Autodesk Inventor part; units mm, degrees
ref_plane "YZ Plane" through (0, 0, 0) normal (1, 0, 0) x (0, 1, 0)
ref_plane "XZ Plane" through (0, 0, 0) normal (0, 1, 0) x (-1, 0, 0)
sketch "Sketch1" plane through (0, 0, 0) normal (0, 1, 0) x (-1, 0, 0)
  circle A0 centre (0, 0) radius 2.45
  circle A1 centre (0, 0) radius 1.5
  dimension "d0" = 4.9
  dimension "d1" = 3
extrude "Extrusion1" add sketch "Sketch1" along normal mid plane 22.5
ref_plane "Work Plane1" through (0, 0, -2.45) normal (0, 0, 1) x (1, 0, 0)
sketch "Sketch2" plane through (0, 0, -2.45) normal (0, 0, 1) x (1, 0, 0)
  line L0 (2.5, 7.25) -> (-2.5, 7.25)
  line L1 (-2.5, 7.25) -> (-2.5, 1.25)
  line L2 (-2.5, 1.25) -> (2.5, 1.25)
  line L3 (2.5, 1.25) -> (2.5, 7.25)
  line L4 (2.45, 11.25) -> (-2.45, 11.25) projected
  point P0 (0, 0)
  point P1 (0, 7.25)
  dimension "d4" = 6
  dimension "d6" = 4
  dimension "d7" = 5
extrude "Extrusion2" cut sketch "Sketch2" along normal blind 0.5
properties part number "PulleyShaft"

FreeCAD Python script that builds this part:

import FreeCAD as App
import Part
import Sketcher
from FreeCAD import Vector


def add_polygon(sketch, points):
    """Adds a closed chain of lines whose ends are joined by coincident constraints."""
    first, n = sketch.GeometryCount, len(points)
    for a, b in zip(points, points[1:] + points[:1]):
        sketch.addGeometry(Part.LineSegment(App.Vector(*a, 0), App.Vector(*b, 0)), False)
    for i in range(n):
        sketch.addConstraint(Sketcher.Constraint("Coincident", first + i, 2, first + (i + 1) % n, 1))

doc = App.newDocument("Part")
body = doc.addObject("PartDesign::Body", "Body")

sketch1 = doc.addObject("Sketcher::SketchObject", "Sketch")
body.addObject(sketch1)
sketch1.AttachmentSupport = (doc.XZ_Plane, [""])
sketch1.MapMode = "FlatFace"
sketch1.addGeometry(Part.Circle(Vector(0, 0, 0), Vector(0, 0, 1), 2.5), False)
sketch1.addGeometry(Part.Circle(Vector(0, 0, 0), Vector(0, 0, 1), 1.5), False)
sketch1.addConstraint(Sketcher.Constraint("Coincident", 0, 3, -1, 1))
sketch1.addConstraint(Sketcher.Constraint("Coincident", 1, 3, -1, 1))
sketch1.addConstraint(Sketcher.Constraint("Diameter", 1, 3.0))
sketch1.addConstraint(Sketcher.Constraint("Diameter", 0, 4.9))
pad1 = doc.addObject("PartDesign::Pad", "Pad")
body.addObject(pad1)
pad1.Profile = sketch1
pad1.Length = 22.5
pad1.Midplane = True

sketch2 = doc.addObject("Sketcher::SketchObject", "Sketch001")
body.addObject(sketch2)
sketch2.AttachmentSupport = (doc.XY_Plane, [""])
sketch2.MapMode = "FlatFace"
sketch2.AttachmentOffset = App.Placement(Vector(0, 0, -2.45), App.Rotation())
add_polygon(sketch2, [(2, 1), (2, 7), (-2, 7), (-2, 1)])
sketch2.addConstraint(Sketcher.Constraint("Vertical", 0))
sketch2.addConstraint(Sketcher.Constraint("Horizontal", 1))
sketch2.addConstraint(Sketcher.Constraint("Vertical", 2))
sketch2.addConstraint(Sketcher.Constraint("Horizontal", 3))
sketch2.addConstraint(Sketcher.Constraint("DistanceX", 1, 2, 1, 1, 5.0))
sketch2.addConstraint(Sketcher.Constraint("DistanceY", 0, 1, 0, 2, 6.0))
sketch2.addConstraint(Sketcher.Constraint("DistanceX", -1, 1, 0, 2, 2.5))
sketch2.addConstraint(Sketcher.Constraint("DistanceY", -1, 1, 0, 2, 7.25))
pocket1 = doc.addObject("PartDesign::Pocket", "Pocket")
body.addObject(pocket1)
pocket1.Profile = sketch2
pocket1.Length = 0.5
pocket1.Reversed = True

doc.recompute()
